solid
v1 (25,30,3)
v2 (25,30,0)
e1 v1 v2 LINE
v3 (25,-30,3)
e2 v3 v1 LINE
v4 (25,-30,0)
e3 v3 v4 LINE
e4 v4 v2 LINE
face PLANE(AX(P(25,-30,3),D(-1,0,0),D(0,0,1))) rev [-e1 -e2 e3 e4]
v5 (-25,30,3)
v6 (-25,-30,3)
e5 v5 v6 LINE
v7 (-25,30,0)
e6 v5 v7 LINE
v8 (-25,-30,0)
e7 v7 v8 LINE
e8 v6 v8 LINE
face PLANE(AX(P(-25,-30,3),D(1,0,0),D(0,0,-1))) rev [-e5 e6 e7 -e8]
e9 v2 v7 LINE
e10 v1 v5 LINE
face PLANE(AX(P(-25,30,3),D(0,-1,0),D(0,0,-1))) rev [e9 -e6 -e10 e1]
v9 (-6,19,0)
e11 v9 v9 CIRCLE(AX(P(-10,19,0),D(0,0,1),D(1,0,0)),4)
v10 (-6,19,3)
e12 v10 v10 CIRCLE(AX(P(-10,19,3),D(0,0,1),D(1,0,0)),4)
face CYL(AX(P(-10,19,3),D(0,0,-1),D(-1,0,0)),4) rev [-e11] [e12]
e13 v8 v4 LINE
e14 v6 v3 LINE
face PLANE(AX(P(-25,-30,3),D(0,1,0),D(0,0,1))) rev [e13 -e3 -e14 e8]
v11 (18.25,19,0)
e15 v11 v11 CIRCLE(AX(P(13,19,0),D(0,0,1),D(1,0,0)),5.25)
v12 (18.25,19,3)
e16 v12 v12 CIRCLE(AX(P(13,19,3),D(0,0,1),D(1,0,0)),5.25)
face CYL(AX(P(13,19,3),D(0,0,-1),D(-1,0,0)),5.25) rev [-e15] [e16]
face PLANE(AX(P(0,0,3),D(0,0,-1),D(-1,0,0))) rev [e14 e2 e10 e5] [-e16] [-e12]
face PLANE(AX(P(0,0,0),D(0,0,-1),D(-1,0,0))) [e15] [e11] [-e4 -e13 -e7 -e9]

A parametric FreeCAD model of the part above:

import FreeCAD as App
import Part
import Sketcher

V = App.Vector

doc = App.newDocument("Part")
body = doc.addObject("PartDesign::Body", "Body")

# Sketch on XY plane
sketch1 = body.newObject("Sketcher::SketchObject", "Sketch")
sketch1.AttachmentSupport = (doc.getObject("XY_Plane"), [""])
sketch1.MapMode = "FlatFace"
sketch1.addGeometry(Part.LineSegment(V(-25, 30, 0), V(-25, -30, 0)), False)
sketch1.addGeometry(Part.LineSegment(V(-25, -30, 0), V(25, -30, 0)), False)
sketch1.addGeometry(Part.LineSegment(V(25, -30, 0), V(25, 30, 0)), False)
sketch1.addGeometry(Part.LineSegment(V(25, 30, 0), V(-25, 30, 0)), False)
sketch1.addGeometry(Part.Circle(V(-10, 19, 0), V(0, 0, 1), 4), False)
sketch1.addConstraint(Sketcher.Constraint("Coincident", 0, 2, 1, 1))
sketch1.addConstraint(Sketcher.Constraint("Coincident", 1, 2, 2, 1))
sketch1.addConstraint(Sketcher.Constraint("Coincident", 2, 2, 3, 1))
sketch1.addConstraint(Sketcher.Constraint("Coincident", 3, 2, 0, 1))
sketch1.addConstraint(Sketcher.Constraint("Vertical", 0))
sketch1.addConstraint(Sketcher.Constraint("Horizontal", 1))
sketch1.addConstraint(Sketcher.Constraint("Vertical", 2))
sketch1.addConstraint(Sketcher.Constraint("Horizontal", 3))
sketch1.addConstraint(Sketcher.Constraint("Symmetric", 0, 2, 2, 2, -1, 1))
sketch1.addConstraint(Sketcher.Constraint("Diameter", 4, 8.0))
sketch1.addConstraint(Sketcher.Constraint("DistanceX", 1, 1, 1, 2, 50.0))
sketch1.addConstraint(Sketcher.Constraint("DistanceY", 0, 2, 0, 1, 60.0))
sketch1.addConstraint(Sketcher.Constraint("DistanceX", 4, 3, -1, 1, 10.0))
sketch1.addConstraint(Sketcher.Constraint("DistanceY", -1, 1, 4, 3, 19.0))
pad1 = body.newObject("PartDesign::Pad", "Pad")
pad1.Profile = sketch1
pad1.Length = 3

# Sketch on XY plane
sketch2 = body.newObject("Sketcher::SketchObject", "Sketch001")
sketch2.AttachmentSupport = (doc.getObject("XY_Plane"), [""])
sketch2.MapMode = "FlatFace"
sketch2.addGeometry(Part.Circle(V(13, 19, 0), V(0, 0, 1), 5), False)
sketch2.addConstraint(Sketcher.Constraint("Diameter", 0, 10.5))
sketch2.addConstraint(Sketcher.Constraint("DistanceX", -1, 1, 0, 3, 13.0))
sketch2.addConstraint(Sketcher.Constraint("DistanceY", -1, 1, 0, 3, 19.0))
pocket1 = body.newObject("PartDesign::Pocket", "Pocket")
pocket1.Profile = sketch2
pocket1.Type = "ThroughAll"
pocket1.Reversed = True

doc.recompute()
